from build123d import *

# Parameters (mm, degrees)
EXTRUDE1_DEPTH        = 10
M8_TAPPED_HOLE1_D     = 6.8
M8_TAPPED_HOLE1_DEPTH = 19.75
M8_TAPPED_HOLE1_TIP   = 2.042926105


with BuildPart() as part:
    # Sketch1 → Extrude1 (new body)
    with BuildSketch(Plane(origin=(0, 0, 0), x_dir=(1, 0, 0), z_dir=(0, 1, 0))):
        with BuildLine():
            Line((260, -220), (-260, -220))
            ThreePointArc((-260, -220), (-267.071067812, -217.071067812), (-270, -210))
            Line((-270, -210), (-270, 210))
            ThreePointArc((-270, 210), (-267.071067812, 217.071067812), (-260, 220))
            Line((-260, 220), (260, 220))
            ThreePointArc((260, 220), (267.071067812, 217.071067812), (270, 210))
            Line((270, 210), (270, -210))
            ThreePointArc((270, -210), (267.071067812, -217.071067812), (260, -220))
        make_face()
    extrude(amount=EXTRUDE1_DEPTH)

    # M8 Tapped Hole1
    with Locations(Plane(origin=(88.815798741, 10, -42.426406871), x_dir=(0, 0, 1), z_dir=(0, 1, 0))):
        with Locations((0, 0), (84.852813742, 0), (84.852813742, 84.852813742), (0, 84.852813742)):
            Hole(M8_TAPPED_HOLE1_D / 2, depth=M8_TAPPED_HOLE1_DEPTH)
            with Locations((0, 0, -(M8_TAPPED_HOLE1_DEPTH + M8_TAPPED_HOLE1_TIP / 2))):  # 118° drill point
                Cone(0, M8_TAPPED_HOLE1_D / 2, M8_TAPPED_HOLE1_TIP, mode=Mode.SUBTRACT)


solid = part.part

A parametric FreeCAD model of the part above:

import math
import FreeCAD as App
import Part
import Sketcher

V = App.Vector

doc = App.newDocument("Part")
body = doc.addObject("PartDesign::Body", "Body")

# Sketch on XZ plane
sketch1 = body.newObject("Sketcher::SketchObject", "Sketch")
sketch1.AttachmentSupport = (doc.getObject("XZ_Plane"), [""])
sketch1.MapMode = "FlatFace"
sketch1.addGeometry([
    Part.LineSegment(V(-260, 220, 0), V(260, 220, 0)),  # 0
    Part.ArcOfCircle(Part.Circle(V(260, 210, 0), V(0, 0, 1), 10), math.radians(0), math.radians(90)),  # 1
    Part.LineSegment(V(270, 210, 0), V(270, -210, 0)),  # 2
    Part.ArcOfCircle(Part.Circle(V(260, -210, 0), V(0, 0, 1), 10), math.radians(-90), math.radians(0)),  # 3
    Part.LineSegment(V(260, -220, 0), V(-260, -220, 0)),  # 4
    Part.ArcOfCircle(Part.Circle(V(-260, -210, 0), V(0, 0, 1), 10), math.radians(180), math.radians(270)),  # 5
    Part.LineSegment(V(-270, -210, 0), V(-270, 210, 0)),  # 6
    Part.ArcOfCircle(Part.Circle(V(-260, 210, 0), V(0, 0, 1), 10), math.radians(90), math.radians(180)),  # 7
], False)
sketch1.addConstraint([
    Sketcher.Constraint("Tangent", 0, 2, 1, 2),
    Sketcher.Constraint("Tangent", 1, 1, 2, 1),
    Sketcher.Constraint("Tangent", 2, 2, 3, 2),
    Sketcher.Constraint("Tangent", 3, 1, 4, 1),
    Sketcher.Constraint("Tangent", 4, 2, 5, 2),
    Sketcher.Constraint("Tangent", 5, 1, 6, 1),
    Sketcher.Constraint("Tangent", 6, 2, 7, 2),
    Sketcher.Constraint("Tangent", 7, 1, 0, 1),
    Sketcher.Constraint("Horizontal", 0),
    Sketcher.Constraint("Vertical", 2),
    Sketcher.Constraint("Horizontal", 4),
    Sketcher.Constraint("Vertical", 6),
    Sketcher.Constraint("Equal", 1, 3),
    Sketcher.Constraint("Equal", 3, 5),
    Sketcher.Constraint("Equal", 5, 7),
    Sketcher.Constraint("Symmetric", 1, 3, 5, 3, -1, 1),
    Sketcher.Constraint("Radius", 1, 10.0),
    Sketcher.Constraint("DistanceX", 0, 1, 0, 2, 520.0),
    Sketcher.Constraint("DistanceY", 2, 2, 2, 1, 420.0),
])
pad1 = body.newObject("PartDesign::Pad", "Pad")
pad1.Profile = sketch1
pad1.Length = 10
pad1.Reversed = True

# Sketch on XZ plane
sketch2 = body.newObject("Sketcher::SketchObject", "Sketch001")
sketch2.AttachmentSupport = (doc.getObject("XZ_Plane"), [""])
sketch2.MapMode = "FlatFace"
sketch2.AttachmentOffset = App.Placement(V(0, 0, -10), App.Rotation())
sketch2.addGeometry([
    Part.Circle(V(88.815799, -42.426407, 0), V(0, 0, 1), 3.4),
    Part.Circle(V(88.815799, 42.426407, 0), V(0, 0, 1), 3.4),
    Part.Circle(V(173.668612, 42.426407, 0), V(0, 0, 1), 3.4),
    Part.Circle(V(173.668612, -42.426407, 0), V(0, 0, 1), 3.4),
], False)
sketch2.addConstraint([
    Sketcher.Constraint("Equal", 0, 1),
    Sketcher.Constraint("Equal", 1, 2),
    Sketcher.Constraint("Equal", 2, 3),
    Sketcher.Constraint("Symmetric", 0, 3, 1, 3, -1),
    Sketcher.Constraint("Symmetric", 2, 3, 3, 3, -1),
    Sketcher.Constraint("Horizontal", 1, 3, 2, 3),
    Sketcher.Constraint("Diameter", 0, 6.8),
    Sketcher.Constraint("DistanceX", -1, 1, 0, 3, 88.815799),
    Sketcher.Constraint("DistanceY", 0, 3, -1, 1, 42.426407),
    Sketcher.Constraint("DistanceX", -1, 1, 2, 3, 173.668612),
])
doc.recompute()
hole = body.newObject("PartDesign::Hole", "Hole")
hole.Profile = sketch2
hole.ThreadType = "None"
hole.Diameter = 6.8
hole.DepthType = "Dimension"
hole.Depth = 19.75
hole.DrillPoint = "Angled"
hole.DrillPointAngle = 118
hole.Reversed = True

doc.recompute()
